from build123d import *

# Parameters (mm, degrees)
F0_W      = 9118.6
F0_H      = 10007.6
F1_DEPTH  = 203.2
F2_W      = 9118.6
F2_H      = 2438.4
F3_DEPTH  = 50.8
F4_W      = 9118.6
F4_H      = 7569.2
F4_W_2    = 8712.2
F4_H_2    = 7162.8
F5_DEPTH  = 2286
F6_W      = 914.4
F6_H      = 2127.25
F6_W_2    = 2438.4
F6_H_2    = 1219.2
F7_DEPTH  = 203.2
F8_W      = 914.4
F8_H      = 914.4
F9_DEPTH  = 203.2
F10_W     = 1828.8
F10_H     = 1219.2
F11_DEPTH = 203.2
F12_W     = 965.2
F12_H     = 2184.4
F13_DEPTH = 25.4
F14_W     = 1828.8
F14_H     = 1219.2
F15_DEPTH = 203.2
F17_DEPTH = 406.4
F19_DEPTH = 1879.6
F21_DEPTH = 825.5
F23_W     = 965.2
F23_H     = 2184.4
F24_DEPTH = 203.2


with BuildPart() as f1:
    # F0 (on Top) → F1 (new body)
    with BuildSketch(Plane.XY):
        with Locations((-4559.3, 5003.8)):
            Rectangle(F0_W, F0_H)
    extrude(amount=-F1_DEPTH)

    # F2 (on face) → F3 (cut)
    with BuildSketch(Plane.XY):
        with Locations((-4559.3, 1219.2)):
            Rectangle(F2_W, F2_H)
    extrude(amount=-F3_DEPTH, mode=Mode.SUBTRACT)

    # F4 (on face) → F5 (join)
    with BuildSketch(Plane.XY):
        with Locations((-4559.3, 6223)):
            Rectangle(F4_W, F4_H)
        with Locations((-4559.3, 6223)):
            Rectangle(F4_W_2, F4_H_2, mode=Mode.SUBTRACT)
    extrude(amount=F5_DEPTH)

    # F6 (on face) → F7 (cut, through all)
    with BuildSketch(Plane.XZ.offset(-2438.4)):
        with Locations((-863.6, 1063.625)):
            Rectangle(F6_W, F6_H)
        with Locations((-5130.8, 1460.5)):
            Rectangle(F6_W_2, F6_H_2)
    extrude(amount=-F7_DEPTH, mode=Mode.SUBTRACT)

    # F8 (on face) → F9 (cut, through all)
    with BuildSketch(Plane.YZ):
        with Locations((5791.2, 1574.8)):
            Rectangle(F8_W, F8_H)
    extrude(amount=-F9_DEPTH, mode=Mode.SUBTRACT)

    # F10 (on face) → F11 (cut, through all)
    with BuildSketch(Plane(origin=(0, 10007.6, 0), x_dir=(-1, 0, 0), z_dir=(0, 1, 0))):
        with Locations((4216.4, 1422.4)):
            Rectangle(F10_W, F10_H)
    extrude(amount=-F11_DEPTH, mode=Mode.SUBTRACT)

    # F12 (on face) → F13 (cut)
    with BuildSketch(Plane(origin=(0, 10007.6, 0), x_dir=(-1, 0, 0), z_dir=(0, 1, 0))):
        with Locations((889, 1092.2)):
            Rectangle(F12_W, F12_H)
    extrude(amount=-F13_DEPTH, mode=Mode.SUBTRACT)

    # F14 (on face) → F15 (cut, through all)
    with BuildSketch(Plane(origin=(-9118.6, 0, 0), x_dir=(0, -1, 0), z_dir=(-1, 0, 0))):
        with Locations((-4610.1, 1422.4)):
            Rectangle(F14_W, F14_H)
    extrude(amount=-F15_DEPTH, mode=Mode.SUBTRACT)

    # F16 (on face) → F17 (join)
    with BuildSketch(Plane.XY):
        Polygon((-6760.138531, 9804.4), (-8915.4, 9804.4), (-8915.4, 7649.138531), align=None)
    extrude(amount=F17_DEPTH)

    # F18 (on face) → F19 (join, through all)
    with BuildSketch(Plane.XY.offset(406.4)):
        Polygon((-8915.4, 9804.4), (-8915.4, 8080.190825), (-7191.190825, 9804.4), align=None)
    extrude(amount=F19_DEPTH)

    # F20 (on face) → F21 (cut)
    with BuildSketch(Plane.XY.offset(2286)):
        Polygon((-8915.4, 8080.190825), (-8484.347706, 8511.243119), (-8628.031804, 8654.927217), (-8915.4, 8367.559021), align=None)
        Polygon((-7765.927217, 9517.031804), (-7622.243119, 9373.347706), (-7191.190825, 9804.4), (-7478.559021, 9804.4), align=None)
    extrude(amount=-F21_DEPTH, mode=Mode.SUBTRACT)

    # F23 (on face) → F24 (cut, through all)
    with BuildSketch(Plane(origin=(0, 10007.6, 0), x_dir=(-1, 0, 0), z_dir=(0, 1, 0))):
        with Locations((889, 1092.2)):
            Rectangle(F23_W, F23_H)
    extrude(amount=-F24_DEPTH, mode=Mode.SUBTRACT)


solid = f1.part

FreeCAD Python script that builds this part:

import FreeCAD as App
import Part
import Sketcher
from FreeCAD import Vector
Q = App.Units.Quantity

doc = App.newDocument("Part")
body = doc.addObject("PartDesign::Body", "Body")

# Sketch on XY plane
sketch1 = body.newObject("Sketcher::SketchObject", "Sketch")
sketch1.AttachmentSupport = (doc.getObject("XY_Plane"), [""])
sketch1.MapMode = "FlatFace"
sketch1.addGeometry(Part.LineSegment(Vector(-9119, 10008, 0), Vector(-9119, 0, 0)), False)
sketch1.addGeometry(Part.LineSegment(Vector(-9119, 0, 0), Vector(0, 0, 0)), False)
sketch1.addGeometry(Part.LineSegment(Vector(0, 0, 0), Vector(0, 10008, 0)), False)
sketch1.addGeometry(Part.LineSegment(Vector(0, 10008, 0), Vector(-9119, 10008, 0)), False)
sketch1.addConstraint(Sketcher.Constraint("Coincident", 0, 2, 1, 1))
sketch1.addConstraint(Sketcher.Constraint("Coincident", 1, 2, 2, 1))
sketch1.addConstraint(Sketcher.Constraint("Coincident", 2, 2, 3, 1))
sketch1.addConstraint(Sketcher.Constraint("Coincident", 3, 2, 0, 1))
sketch1.addConstraint(Sketcher.Constraint("Vertical", 0))
sketch1.addConstraint(Sketcher.Constraint("Horizontal", 1))
sketch1.addConstraint(Sketcher.Constraint("Vertical", 2))
sketch1.addConstraint(Sketcher.Constraint("Horizontal", 3))
sketch1.addConstraint(Sketcher.Constraint("Coincident", 1, 2, -1, 1))
sketch1.addConstraint(Sketcher.Constraint("DistanceX", 1, 1, 1, 2, Q("359 in")))
sketch1.addConstraint(Sketcher.Constraint("DistanceY", 0, 2, 0, 1, Q("394 in")))
pad1 = body.newObject("PartDesign::Pad", "Pad")
pad1.Profile = sketch1
pad1.Length = Q("8 in")
pad1.Reversed = True

# Sketch on XY plane
sketch2 = body.newObject("Sketcher::SketchObject", "Sketch001")
sketch2.AttachmentSupport = (doc.getObject("XY_Plane"), [""])
sketch2.MapMode = "FlatFace"
sketch2.addGeometry(Part.LineSegment(Vector(-9119, 2438, 0), Vector(-9119, 0, 0)), False)
sketch2.addGeometry(Part.LineSegment(Vector(-9119, 0, 0), Vector(0, 0, 0)), False)
sketch2.addGeometry(Part.LineSegment(Vector(0, 0, 0), Vector(0, 2438, 0)), False)
sketch2.addGeometry(Part.LineSegment(Vector(0, 2438, 0), Vector(-9119, 2438, 0)), False)
sketch2.addConstraint(Sketcher.Constraint("Coincident", 0, 2, 1, 1))
sketch2.addConstraint(Sketcher.Constraint("Coincident", 1, 2, 2, 1))
sketch2.addConstraint(Sketcher.Constraint("Coincident", 2, 2, 3, 1))
sketch2.addConstraint(Sketcher.Constraint("Coincident", 3, 2, 0, 1))
sketch2.addConstraint(Sketcher.Constraint("Vertical", 0))
sketch2.addConstraint(Sketcher.Constraint("Horizontal", 1))
sketch2.addConstraint(Sketcher.Constraint("Vertical", 2))
sketch2.addConstraint(Sketcher.Constraint("Horizontal", 3))
sketch2.addConstraint(Sketcher.Constraint("Coincident", 1, 2, -1, 1))
sketch2.addConstraint(Sketcher.Constraint("DistanceX", 1, 1, 1, 2, Q("359 in")))
sketch2.addConstraint(Sketcher.Constraint("DistanceY", 0, 2, 0, 1, Q("96 in")))
pocket1 = body.newObject("PartDesign::Pocket", "Pocket")
pocket1.Profile = sketch2
pocket1.Length = Q("2 in")

# Sketch on XY plane
sketch3 = body.newObject("Sketcher::SketchObject", "Sketch002")
sketch3.AttachmentSupport = (doc.getObject("XY_Plane"), [""])
sketch3.MapMode = "FlatFace"
sketch3.addGeometry(Part.LineSegment(Vector(-9119, 10008, 0), Vector(-9119, 2438, 0)), False)
sketch3.addGeometry(Part.LineSegment(Vector(-9119, 2438, 0), Vector(0, 2438, 0)), False)
sketch3.addGeometry(Part.LineSegment(Vector(0, 2438, 0), Vector(0, 10008, 0)), False)
sketch3.addGeometry(Part.LineSegment(Vector(0, 10008, 0), Vector(-9119, 10008, 0)), False)
sketch3.addGeometry(Part.LineSegment(Vector(-203, 2642, 0), Vector(-8915, 2642, 0)), False)
sketch3.addGeometry(Part.LineSegment(Vector(-8915, 2642, 0), Vector(-8915, 9804, 0)), False)
sketch3.addGeometry(Part.LineSegment(Vector(-8915, 9804, 0), Vector(-203, 9804, 0)), False)
sketch3.addGeometry(Part.LineSegment(Vector(-203, 9804, 0), Vector(-203, 2642, 0)), False)
sketch3.addConstraint(Sketcher.Constraint("Coincident", 0, 2, 1, 1))
sketch3.addConstraint(Sketcher.Constraint("Coincident", 1, 2, 2, 1))
sketch3.addConstraint(Sketcher.Constraint("Coincident", 2, 2, 3, 1))
sketch3.addConstraint(Sketcher.Constraint("Coincident", 3, 2, 0, 1))
sketch3.addConstraint(Sketcher.Constraint("Coincident", 4, 2, 5, 1))
sketch3.addConstraint(Sketcher.Constraint("Coincident", 5, 2, 6, 1))
sketch3.addConstraint(Sketcher.Constraint("Coincident", 6, 2, 7, 1))
sketch3.addConstraint(Sketcher.Constraint("Coincident", 7, 2, 4, 1))
sketch3.addConstraint(Sketcher.Constraint("Vertical", 0))
sketch3.addConstraint(Sketcher.Constraint("Horizontal", 1))
sketch3.addConstraint(Sketcher.Constraint("Vertical", 2))
sketch3.addConstraint(Sketcher.Constraint("Horizontal", 3))
sketch3.addConstraint(Sketcher.Constraint("Horizontal", 4))
sketch3.addConstraint(Sketcher.Constraint("Vertical", 5))
sketch3.addConstraint(Sketcher.Constraint("Horizontal", 6))
sketch3.addConstraint(Sketcher.Constraint("Vertical", 7))
sketch3.addConstraint(Sketcher.Constraint("PointOnObject", 1, 2, -2))
sketch3.addConstraint(Sketcher.Constraint("DistanceX", 1, 1, 1, 2, Q("359 in")))
sketch3.addConstraint(Sketcher.Constraint("DistanceX", 4, 2, 4, 1, Q("343 in")))
sketch3.addConstraint(Sketcher.Constraint("DistanceY", 0, 2, 0, 1, Q("298 in")))
sketch3.addConstraint(Sketcher.Constraint("DistanceY", 5, 1, 5, 2, Q("282 in")))
sketch3.addConstraint(Sketcher.Constraint("DistanceY", -1, 1, 0, 2, Q("96 in")))
sketch3.addConstraint(Sketcher.Constraint("DistanceX", 4, 2, -1, 1, Q("351 in")))
sketch3.addConstraint(Sketcher.Constraint("DistanceY", -1, 1, 4, 2, Q("104 in")))
pad2 = body.newObject("PartDesign::Pad", "Pad001")
pad2.Profile = sketch3
pad2.Length = Q("90 in")

# Sketch on XZ plane
sketch4 = body.newObject("Sketcher::SketchObject", "Sketch003")
sketch4.AttachmentSupport = (doc.getObject("XZ_Plane"), [""])
sketch4.MapMode = "FlatFace"
sketch4.AttachmentOffset = App.Placement(Vector(0, 0, -96 * 25.4), App.Rotation())
sketch4.addGeometry(Part.LineSegment(Vector(-1321, 2127, 0), Vector(-1321, 0, 0)), False)
sketch4.addGeometry(Part.LineSegment(Vector(-1321, 0, 0), Vector(-406, 0, 0)), False)
sketch4.addGeometry(Part.LineSegment(Vector(-406, 0, 0), Vector(-406, 2127, 0)), False)
sketch4.addGeometry(Part.LineSegment(Vector(-406, 2127, 0), Vector(-1321, 2127, 0)), False)
sketch4.addGeometry(Part.LineSegment(Vector(-6350, 2070, 0), Vector(-6350, 851, 0)), False)
sketch4.addGeometry(Part.LineSegment(Vector(-6350, 851, 0), Vector(-3912, 851, 0)), False)
sketch4.addGeometry(Part.LineSegment(Vector(-3912, 851, 0), Vector(-3912, 2070, 0)), False)
sketch4.addGeometry(Part.LineSegment(Vector(-3912, 2070, 0), Vector(-6350, 2070, 0)), False)
sketch4.addConstraint(Sketcher.Constraint("Coincident", 0, 2, 1, 1))
sketch4.addConstraint(Sketcher.Constraint("Coincident", 1, 2, 2, 1))
sketch4.addConstraint(Sketcher.Constraint("Coincident", 2, 2, 3, 1))
sketch4.addConstraint(Sketcher.Constraint("Coincident", 3, 2, 0, 1))
sketch4.addConstraint(Sketcher.Constraint("Coincident", 4, 2, 5, 1))
sketch4.addConstraint(Sketcher.Constraint("Coincident", 5, 2, 6, 1))
sketch4.addConstraint(Sketcher.Constraint("Coincident", 6, 2, 7, 1))
sketch4.addConstraint(Sketcher.Constraint("Coincident", 7, 2, 4, 1))
sketch4.addConstraint(Sketcher.Constraint("Vertical", 0))
sketch4.addConstraint(Sketcher.Constraint("Horizontal", 1))
sketch4.addConstraint(Sketcher.Constraint("Vertical", 2))
sketch4.addConstraint(Sketcher.Constraint("Horizontal", 3))
sketch4.addConstraint(Sketcher.Constraint("Vertical", 4))
sketch4.addConstraint(Sketcher.Constraint("Horizontal", 5))
sketch4.addConstraint(Sketcher.Constraint("Vertical", 6))
sketch4.addConstraint(Sketcher.Constraint("Horizontal", 7))
sketch4.addConstraint(Sketcher.Constraint("PointOnObject", 0, 2, -1))
sketch4.addConstraint(Sketcher.Constraint("DistanceX", 1, 1, 1, 2, Q("36 in")))
sketch4.addConstraint(Sketcher.Constraint("DistanceX", 5, 1, 5, 2, Q("96 in")))
sketch4.addConstraint(Sketcher.Constraint("DistanceY", 4, 2, 4, 1, Q("48 in")))
sketch4.addConstraint(Sketcher.Constraint("DistanceX", 0, 2, -1, 1, Q("52 in")))
sketch4.addConstraint(Sketcher.Constraint("DistanceX", 4, 2, -1, 1, Q("250 in")))
sketch4.addConstraint(Sketcher.Constraint("DistanceY", 0, 2, 0, 1, Q("83.75 in")))
sketch4.addConstraint(Sketcher.Constraint("DistanceY", -1, 1, 4, 2, Q("33.5 in")))
pocket2 = body.newObject("PartDesign::Pocket", "Pocket001")
pocket2.Profile = sketch4
pocket2.Length = Q("8 in")

# Sketch on YZ plane
sketch5 = body.newObject("Sketcher::SketchObject", "Sketch004")
sketch5.AttachmentSupport = (doc.getObject("YZ_Plane"), [""])
sketch5.MapMode = "FlatFace"
sketch5.addGeometry(Part.LineSegment(Vector(5334, 2032, 0), Vector(5334, 1118, 0)), False)
sketch5.addGeometry(Part.LineSegment(Vector(5334, 1118, 0), Vector(6248, 1118, 0)), False)
sketch5.addGeometry(Part.LineSegment(Vector(6248, 1118, 0), Vector(6248, 2032, 0)), False)
sketch5.addGeometry(Part.LineSegment(Vector(6248, 2032, 0), Vector(5334, 2032, 0)), False)
sketch5.addConstraint(Sketcher.Constraint("Coincident", 0, 2, 1, 1))
sketch5.addConstraint(Sketcher.Constraint("Coincident", 1, 2, 2, 1))
sketch5.addConstraint(Sketcher.Constraint("Coincident", 2, 2, 3, 1))
sketch5.addConstraint(Sketcher.Constraint("Coincident", 3, 2, 0, 1))
sketch5.addConstraint(Sketcher.Constraint("Vertical", 0))
sketch5.addConstraint(Sketcher.Constraint("Horizontal", 1))
sketch5.addConstraint(Sketcher.Constraint("Vertical", 2))
sketch5.addConstraint(Sketcher.Constraint("Horizontal", 3))
sketch5.addConstraint(Sketcher.Constraint("Equal", 3, 0))
sketch5.addConstraint(Sketcher.Constraint("DistanceX", 1, 1, 1, 2, Q("36 in")))
sketch5.addConstraint(Sketcher.Constraint("DistanceX", -1, 1, 0, 2, Q("210 in")))
sketch5.addConstraint(Sketcher.Constraint("DistanceY", -1, 1, 0, 2, Q("44 in")))
pocket3 = body.newObject("PartDesign::Pocket", "Pocket002")
pocket3.Profile = sketch5
pocket3.Length = Q("8 in")

# Sketch on XZ plane
sketch6 = body.newObject("Sketcher::SketchObject", "Sketch005")
sketch6.AttachmentSupport = (doc.getObject("XZ_Plane"), [""])
sketch6.MapMode = "FlatFace"
sketch6.AttachmentOffset = App.Placement(Vector(0, 0, -394 * 25.4), App.Rotation())
sketch6.addGeometry(Part.LineSegment(Vector(-3302, 2032, 0), Vector(-3302, 813, 0)), False)
sketch6.addGeometry(Part.LineSegment(Vector(-3302, 813, 0), Vector(-5131, 813, 0)), False)
sketch6.addGeometry(Part.LineSegment(Vector(-5131, 813, 0), Vector(-5131, 2032, 0)), False)
sketch6.addGeometry(Part.LineSegment(Vector(-5131, 2032, 0), Vector(-3302, 2032, 0)), False)
sketch6.addConstraint(Sketcher.Constraint("Coincident", 0, 2, 1, 1))
sketch6.addConstraint(Sketcher.Constraint("Coincident", 1, 2, 2, 1))
sketch6.addConstraint(Sketcher.Constraint("Coincident", 2, 2, 3, 1))
sketch6.addConstraint(Sketcher.Constraint("Coincident", 3, 2, 0, 1))
sketch6.addConstraint(Sketcher.Constraint("Vertical", 0))
sketch6.addConstraint(Sketcher.Constraint("Horizontal", 1))
sketch6.addConstraint(Sketcher.Constraint("Vertical", 2))
sketch6.addConstraint(Sketcher.Constraint("Horizontal", 3))
sketch6.addConstraint(Sketcher.Constraint("DistanceX", 1, 2, 1, 1, Q("72 in")))
sketch6.addConstraint(Sketcher.Constraint("DistanceY", 0, 2, 0, 1, Q("48 in")))
sketch6.addConstraint(Sketcher.Constraint("DistanceX", 0, 2, -1, 1, Q("130 in")))
sketch6.addConstraint(Sketcher.Constraint("DistanceY", -1, 1, 0, 2, Q("32 in")))
pocket4 = body.newObject("PartDesign::Pocket", "Pocket003")
pocket4.Profile = sketch6
pocket4.Length = Q("8 in")
pocket4.Reversed = True

# Sketch on XZ plane
sketch7 = body.newObject("Sketcher::SketchObject", "Sketch006")
sketch7.AttachmentSupport = (doc.getObject("XZ_Plane"), [""])
sketch7.MapMode = "FlatFace"
sketch7.AttachmentOffset = App.Placement(Vector(0, 0, -394 * 25.4), App.Rotation())
sketch7.addGeometry(Part.LineSegment(Vector(-406, 2184, 0), Vector(-406, 0, 0)), False)
sketch7.addGeometry(Part.LineSegment(Vector(-406, 0, 0), Vector(-1372, 0, 0)), False)
sketch7.addGeometry(Part.LineSegment(Vector(-1372, 0, 0), Vector(-1372, 2184, 0)), False)
sketch7.addGeometry(Part.LineSegment(Vector(-1372, 2184, 0), Vector(-406, 2184, 0)), False)
sketch7.addConstraint(Sketcher.Constraint("Coincident", 0, 2, 1, 1))
sketch7.addConstraint(Sketcher.Constraint("Coincident", 1, 2, 2, 1))
sketch7.addConstraint(Sketcher.Constraint("Coincident", 2, 2, 3, 1))
sketch7.addConstraint(Sketcher.Constraint("Coincident", 3, 2, 0, 1))
sketch7.addConstraint(Sketcher.Constraint("Vertical", 0))
sketch7.addConstraint(Sketcher.Constraint("Horizontal", 1))
sketch7.addConstraint(Sketcher.Constraint("Vertical", 2))
sketch7.addConstraint(Sketcher.Constraint("Horizontal", 3))
sketch7.addConstraint(Sketcher.Constraint("PointOnObject", 0, 2, -1))
sketch7.addConstraint(Sketcher.Constraint("DistanceX", 1, 2, 1, 1, Q("38 in")))
sketch7.addConstraint(Sketcher.Constraint("DistanceY", 0, 2, 0, 1, Q("86 in")))
sketch7.addConstraint(Sketcher.Constraint("DistanceX", 0, 2, -1, 1, Q("16 in")))
pocket5 = body.newObject("PartDesign::Pocket", "Pocket004")
pocket5.Profile = sketch7
pocket5.Length = Q("1 in")
pocket5.Reversed = True

# Sketch on YZ plane
sketch8 = body.newObject("Sketcher::SketchObject", "Sketch007")
sketch8.AttachmentSupport = (doc.getObject("YZ_Plane"), [""])
sketch8.MapMode = "FlatFace"
sketch8.AttachmentOffset = App.Placement(Vector(0, 0, -359 * 25.4), App.Rotation())
sketch8.addGeometry(Part.LineSegment(Vector(5524, 2032, 0), Vector(5524, 813, 0)), False)
sketch8.addGeometry(Part.LineSegment(Vector(5524, 813, 0), Vector(3696, 813, 0)), False)
sketch8.addGeometry(Part.LineSegment(Vector(3696, 813, 0), Vector(3696, 2032, 0)), False)
sketch8.addGeometry(Part.LineSegment(Vector(3696, 2032, 0), Vector(5524, 2032, 0)), False)
sketch8.addConstraint(Sketcher.Constraint("Coincident", 0, 2, 1, 1))
sketch8.addConstraint(Sketcher.Constraint("Coincident", 1, 2, 2, 1))
sketch8.addConstraint(Sketcher.Constraint("Coincident", 2, 2, 3, 1))
sketch8.addConstraint(Sketcher.Constraint("Coincident", 3, 2, 0, 1))
sketch8.addConstraint(Sketcher.Constraint("Vertical", 0))
sketch8.addConstraint(Sketcher.Constraint("Horizontal", 1))
sketch8.addConstraint(Sketcher.Constraint("Vertical", 2))
sketch8.addConstraint(Sketcher.Constraint("Horizontal", 3))
sketch8.addConstraint(Sketcher.Constraint("DistanceX", 1, 2, 1, 1, Q("72 in")))
sketch8.addConstraint(Sketcher.Constraint("DistanceY", 0, 2, 0, 1, Q("48 in")))
sketch8.addConstraint(Sketcher.Constraint("DistanceY", -1, 1, 0, 2, Q("32 in")))
sketch8.addConstraint(Sketcher.Constraint("DistanceX", -1, 1, 0, 2, Q("217.5 in")))
pocket6 = body.newObject("PartDesign::Pocket", "Pocket005")
pocket6.Profile = sketch8
pocket6.Length = Q("8 in")
pocket6.Reversed = True

# Sketch on XY plane
sketch9 = body.newObject("Sketcher::SketchObject", "Sketch008")
sketch9.AttachmentSupport = (doc.getObject("XY_Plane"), [""])
sketch9.MapMode = "FlatFace"
sketch9.addGeometry(Part.LineSegment(Vector(-6760, 9804, 0), Vector(-8915, 9804, 0)), False)
sketch9.addGeometry(Part.LineSegment(Vector(-8915, 9804, 0), Vector(-8915, 7649, 0)), False)
sketch9.addGeometry(Part.LineSegment(Vector(-8915, 7649, 0), Vector(-6760, 9804, 0)), False)
sketch9.addConstraint(Sketcher.Constraint("Coincident", 0, 2, 1, 1))
sketch9.addConstraint(Sketcher.Constraint("Coincident", 1, 2, 2, 1))
sketch9.addConstraint(Sketcher.Constraint("Coincident", 2, 2, 0, 1))
sketch9.addConstraint(Sketcher.Constraint("Horizontal", 0))
sketch9.addConstraint(Sketcher.Constraint("Vertical", 1))
sketch9.addConstraint(Sketcher.Constraint("Equal", 0, 1))
sketch9.addConstraint(Sketcher.Constraint("Distance", 2, Q("120 in")))
sketch9.addConstraint(Sketcher.Constraint("DistanceX", 0, 2, -1, 1, Q("351 in")))
sketch9.addConstraint(Sketcher.Constraint("DistanceY", -1, 1, 0, 2, Q("386 in")))
pad3 = body.newObject("PartDesign::Pad", "Pad002")
pad3.Profile = sketch9
pad3.Length = Q("16 in")

# Sketch on XY plane
sketch10 = body.newObject("Sketcher::SketchObject", "Sketch009")
sketch10.AttachmentSupport = (doc.getObject("XY_Plane"), [""])
sketch10.MapMode = "FlatFace"
sketch10.AttachmentOffset = App.Placement(Vector(0, 0, 16 * 25.4), App.Rotation())
sketch10.addGeometry(Part.LineSegment(Vector(-8915, 9804, 0), Vector(-8915, 8080, 0)), False)
sketch10.addGeometry(Part.LineSegment(Vector(-8915, 8080, 0), Vector(-7191, 9804, 0)), False)
sketch10.addGeometry(Part.LineSegment(Vector(-7191, 9804, 0), Vector(-8915, 9804, 0)), False)
sketch10.addConstraint(Sketcher.Constraint("Coincident", 0, 2, 1, 1))
sketch10.addConstraint(Sketcher.Constraint("Coincident", 1, 2, 2, 1))
sketch10.addConstraint(Sketcher.Constraint("Coincident", 2, 2, 0, 1))
sketch10.addConstraint(Sketcher.Constraint("Vertical", 0))
sketch10.addConstraint(Sketcher.Constraint("Horizontal", 2))
sketch10.addConstraint(Sketcher.Constraint("Equal", 2, 0))
sketch10.addConstraint(Sketcher.Constraint("Distance", 1, Q("96 in")))
sketch10.addConstraint(Sketcher.Constraint("DistanceX", 0, 2, -1, 1, Q("351 in")))
sketch10.addConstraint(Sketcher.Constraint("DistanceY", -1, 1, 1, 2, Q("386 in")))
pad4 = body.newObject("PartDesign::Pad", "Pad003")
pad4.Profile = sketch10
pad4.Length = Q("74 in")

# Sketch on XY plane
sketch11 = body.newObject("Sketcher::SketchObject", "Sketch010")
sketch11.AttachmentSupport = (doc.getObject("XY_Plane"), [""])
sketch11.MapMode = "FlatFace"
sketch11.AttachmentOffset = App.Placement(Vector(0, 0, 90 * 25.4), App.Rotation())
sketch11.addGeometry(Part.LineSegment(Vector(-8915, 8080, 0), Vector(-8484, 8511, 0)), False)
sketch11.addGeometry(Part.LineSegment(Vector(-8484, 8511, 0), Vector(-8628, 8655, 0)), False)
sketch11.addGeometry(Part.LineSegment(Vector(-8628, 8655, 0), Vector(-8915, 8368, 0)), False)
sketch11.addGeometry(Part.LineSegment(Vector(-8915, 8368, 0), Vector(-8915, 8080, 0)), False)
sketch11.addGeometry(Part.LineSegment(Vector(-7766, 9517, 0), Vector(-7622, 9373, 0)), False)
sketch11.addGeometry(Part.LineSegment(Vector(-7622, 9373, 0), Vector(-7191, 9804, 0)), False)
sketch11.addGeometry(Part.LineSegment(Vector(-7191, 9804, 0), Vector(-7479, 9804, 0)), False)
sketch11.addGeometry(Part.LineSegment(Vector(-7479, 9804, 0), Vector(-7766, 9517, 0)), False)
sketch11.addConstraint(Sketcher.Constraint("Coincident", 0, 2, 1, 1))
sketch11.addConstraint(Sketcher.Constraint("Coincident", 1, 2, 2, 1))
sketch11.addConstraint(Sketcher.Constraint("Coincident", 2, 2, 3, 1))
sketch11.addConstraint(Sketcher.Constraint("Coincident", 3, 2, 0, 1))
sketch11.addConstraint(Sketcher.Constraint("Coincident", 4, 2, 5, 1))
sketch11.addConstraint(Sketcher.Constraint("Coincident", 5, 2, 6, 1))
sketch11.addConstraint(Sketcher.Constraint("Coincident", 6, 2, 7, 1))
sketch11.addConstraint(Sketcher.Constraint("Coincident", 7, 2, 4, 1))
sketch11.addConstraint(Sketcher.Constraint("Vertical", 3))
sketch11.addConstraint(Sketcher.Constraint("Horizontal", 6))
sketch11.addConstraint(Sketcher.Constraint("Perpendicular", 0, 1))
sketch11.addConstraint(Sketcher.Constraint("Perpendicular", 1, 2))
sketch11.addConstraint(Sketcher.Constraint("Perpendicular", 2, 4))
sketch11.addConstraint(Sketcher.Constraint("Perpendicular", 4, 5))
sketch11.addConstraint(Sketcher.Constraint("Parallel", 5, 7))
sketch11.addConstraint(Sketcher.Constraint("Equal", 6, 3))
sketch11.addConstraint(Sketcher.Constraint("Equal", 1, 4))
sketch11.addConstraint(Sketcher.Constraint("Equal", 0, 5))
sketch11.addConstraint(Sketcher.Constraint("Distance", 0, Q("24 in")))
sketch11.addConstraint(Sketcher.Constraint("Distance", 1, Q("8 in")))
sketch11.addConstraint(Sketcher.Constraint("DistanceX", 2, 2, -1, 1, Q("351 in")))
sketch11.addConstraint(Sketcher.Constraint("DistanceY", -1, 1, 5, 2, Q("386 in")))
sketch11.addConstraint(Sketcher.Constraint("DistanceY", -1, 1, 0, 2, Q("8511.243119 mm")))
sketch11.addConstraint(Sketcher.Constraint("DistanceX", 4, 2, -1, 1, Q("7622.243119 mm")))
pocket7 = body.newObject("PartDesign::Pocket", "Pocket006")
pocket7.Profile = sketch11
pocket7.Length = Q("32.5 in")

# Sketch on XZ plane
sketch12 = body.newObject("Sketcher::SketchObject", "Sketch011")
sketch12.AttachmentSupport = (doc.getObject("XZ_Plane"), [""])
sketch12.MapMode = "FlatFace"
sketch12.AttachmentOffset = App.Placement(Vector(0, 0, -394 * 25.4), App.Rotation())
sketch12.addGeometry(Part.LineSegment(Vector(-406, 2184, 0), Vector(-406, 0, 0)), False)
sketch12.addGeometry(Part.LineSegment(Vector(-406, 0, 0), Vector(-1372, 0, 0)), False)
sketch12.addGeometry(Part.LineSegment(Vector(-1372, 0, 0), Vector(-1372, 2184, 0)), False)
sketch12.addGeometry(Part.LineSegment(Vector(-1372, 2184, 0), Vector(-406, 2184, 0)), False)
sketch12.addConstraint(Sketcher.Constraint("Coincident", 0, 2, 1, 1))
sketch12.addConstraint(Sketcher.Constraint("Coincident", 1, 2, 2, 1))
sketch12.addConstraint(Sketcher.Constraint("Coincident", 2, 2, 3, 1))
sketch12.addConstraint(Sketcher.Constraint("Coincident", 3, 2, 0, 1))
sketch12.addConstraint(Sketcher.Constraint("Vertical", 0))
sketch12.addConstraint(Sketcher.Constraint("Horizontal", 1))
sketch12.addConstraint(Sketcher.Constraint("Vertical", 2))
sketch12.addConstraint(Sketcher.Constraint("Horizontal", 3))
sketch12.addConstraint(Sketcher.Constraint("PointOnObject", 0, 2, -1))
sketch12.addConstraint(Sketcher.Constraint("DistanceX", 1, 2, 1, 1, Q("38 in")))
sketch12.addConstraint(Sketcher.Constraint("DistanceY", 0, 2, 0, 1, Q("86 in")))
sketch12.addConstraint(Sketcher.Constraint("DistanceX", 0, 2, -1, 1, Q("16 in")))
pocket8 = body.newObject("PartDesign::Pocket", "Pocket007")
pocket8.Profile = sketch12
pocket8.Length = Q("8 in")
pocket8.Reversed = True

doc.recompute()
